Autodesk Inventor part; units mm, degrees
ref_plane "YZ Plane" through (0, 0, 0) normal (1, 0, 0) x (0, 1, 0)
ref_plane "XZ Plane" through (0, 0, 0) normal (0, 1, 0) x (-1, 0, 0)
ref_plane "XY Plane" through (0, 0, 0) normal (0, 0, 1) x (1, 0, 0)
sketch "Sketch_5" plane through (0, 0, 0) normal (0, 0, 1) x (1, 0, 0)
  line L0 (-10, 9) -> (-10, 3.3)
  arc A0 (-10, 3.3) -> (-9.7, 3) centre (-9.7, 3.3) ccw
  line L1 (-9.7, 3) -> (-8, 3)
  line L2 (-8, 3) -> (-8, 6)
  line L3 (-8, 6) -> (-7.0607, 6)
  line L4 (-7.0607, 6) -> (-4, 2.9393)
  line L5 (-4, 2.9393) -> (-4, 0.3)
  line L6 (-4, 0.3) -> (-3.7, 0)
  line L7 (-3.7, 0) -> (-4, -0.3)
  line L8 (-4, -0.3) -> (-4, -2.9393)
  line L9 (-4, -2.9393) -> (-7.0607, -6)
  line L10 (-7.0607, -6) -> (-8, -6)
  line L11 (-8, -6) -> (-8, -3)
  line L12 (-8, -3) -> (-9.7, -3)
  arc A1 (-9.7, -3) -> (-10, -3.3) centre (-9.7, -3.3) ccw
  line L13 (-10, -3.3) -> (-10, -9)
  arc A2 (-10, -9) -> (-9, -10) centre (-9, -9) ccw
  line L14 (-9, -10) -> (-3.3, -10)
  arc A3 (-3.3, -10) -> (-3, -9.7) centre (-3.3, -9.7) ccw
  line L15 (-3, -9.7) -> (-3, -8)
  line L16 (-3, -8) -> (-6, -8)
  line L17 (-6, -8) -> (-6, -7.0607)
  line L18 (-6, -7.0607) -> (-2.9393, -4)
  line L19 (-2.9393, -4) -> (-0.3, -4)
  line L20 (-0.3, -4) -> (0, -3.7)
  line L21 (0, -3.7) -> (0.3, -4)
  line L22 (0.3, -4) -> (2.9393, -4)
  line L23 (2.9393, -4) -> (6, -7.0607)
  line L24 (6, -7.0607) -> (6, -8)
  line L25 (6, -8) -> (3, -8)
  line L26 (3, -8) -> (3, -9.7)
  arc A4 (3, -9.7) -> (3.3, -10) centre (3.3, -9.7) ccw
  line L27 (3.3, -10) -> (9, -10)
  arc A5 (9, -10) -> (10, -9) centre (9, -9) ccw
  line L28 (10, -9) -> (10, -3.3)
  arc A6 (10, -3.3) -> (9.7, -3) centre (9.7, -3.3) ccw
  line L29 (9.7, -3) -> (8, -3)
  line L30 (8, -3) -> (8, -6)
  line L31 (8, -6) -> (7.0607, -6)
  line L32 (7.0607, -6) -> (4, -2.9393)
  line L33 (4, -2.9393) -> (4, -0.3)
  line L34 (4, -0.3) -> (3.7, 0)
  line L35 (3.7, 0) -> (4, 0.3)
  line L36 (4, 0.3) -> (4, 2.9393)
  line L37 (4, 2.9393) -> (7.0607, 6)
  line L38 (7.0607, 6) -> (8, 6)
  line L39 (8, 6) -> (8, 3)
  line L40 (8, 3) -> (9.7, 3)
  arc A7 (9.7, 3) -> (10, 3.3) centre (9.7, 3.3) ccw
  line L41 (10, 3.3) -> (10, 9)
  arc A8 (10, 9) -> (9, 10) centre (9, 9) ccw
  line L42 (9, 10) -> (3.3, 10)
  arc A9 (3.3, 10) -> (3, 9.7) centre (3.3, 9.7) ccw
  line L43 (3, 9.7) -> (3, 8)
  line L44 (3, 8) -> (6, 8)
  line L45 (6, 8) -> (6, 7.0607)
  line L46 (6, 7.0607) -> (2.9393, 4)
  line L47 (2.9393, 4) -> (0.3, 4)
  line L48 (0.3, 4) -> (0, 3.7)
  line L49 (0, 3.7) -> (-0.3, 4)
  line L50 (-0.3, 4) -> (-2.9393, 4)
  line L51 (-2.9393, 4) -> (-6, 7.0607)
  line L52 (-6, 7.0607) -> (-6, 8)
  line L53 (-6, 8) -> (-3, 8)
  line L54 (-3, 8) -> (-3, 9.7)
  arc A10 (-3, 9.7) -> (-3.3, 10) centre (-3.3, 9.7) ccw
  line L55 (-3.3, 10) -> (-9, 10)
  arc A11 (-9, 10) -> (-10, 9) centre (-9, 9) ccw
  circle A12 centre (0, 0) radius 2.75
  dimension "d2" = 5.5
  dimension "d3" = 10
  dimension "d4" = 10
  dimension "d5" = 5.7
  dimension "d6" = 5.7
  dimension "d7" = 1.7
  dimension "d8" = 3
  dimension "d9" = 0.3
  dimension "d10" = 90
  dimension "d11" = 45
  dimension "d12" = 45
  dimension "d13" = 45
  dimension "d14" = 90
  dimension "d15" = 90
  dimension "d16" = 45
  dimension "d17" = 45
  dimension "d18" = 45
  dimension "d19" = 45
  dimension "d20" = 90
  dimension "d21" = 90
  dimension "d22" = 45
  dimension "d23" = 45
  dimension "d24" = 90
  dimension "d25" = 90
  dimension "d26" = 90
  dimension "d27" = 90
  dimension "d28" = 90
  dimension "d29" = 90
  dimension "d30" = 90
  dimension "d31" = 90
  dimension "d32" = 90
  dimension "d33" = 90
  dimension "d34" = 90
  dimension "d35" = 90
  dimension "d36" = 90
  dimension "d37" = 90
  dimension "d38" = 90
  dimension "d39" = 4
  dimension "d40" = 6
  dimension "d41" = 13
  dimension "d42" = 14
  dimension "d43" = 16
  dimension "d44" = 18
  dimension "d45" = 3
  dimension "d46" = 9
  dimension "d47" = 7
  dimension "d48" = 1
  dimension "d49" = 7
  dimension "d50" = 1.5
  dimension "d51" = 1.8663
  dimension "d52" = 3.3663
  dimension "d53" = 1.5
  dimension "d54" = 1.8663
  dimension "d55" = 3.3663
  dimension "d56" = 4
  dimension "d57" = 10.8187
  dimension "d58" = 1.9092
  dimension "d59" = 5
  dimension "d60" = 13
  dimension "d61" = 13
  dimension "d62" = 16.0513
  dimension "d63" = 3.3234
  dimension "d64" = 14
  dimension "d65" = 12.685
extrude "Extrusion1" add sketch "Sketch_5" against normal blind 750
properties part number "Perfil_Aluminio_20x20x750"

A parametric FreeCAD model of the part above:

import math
import FreeCAD as App
import Part
import Sketcher
from FreeCAD import Vector
Q = App.Units.Quantity

doc = App.newDocument("Part")
body = doc.addObject("PartDesign::Body", "Body")

# Sketch on XY plane
sketch1 = body.newObject("Sketcher::SketchObject", "Sketch")
sketch1.AttachmentSupport = (doc.getObject("XY_Plane"), [""])
sketch1.MapMode = "FlatFace"
sketch1.addGeometry([
    Part.ArcOfCircle(Part.Circle(Vector(-9, 9, 0), Vector(0, 0, 1), 1), math.radians(90), math.radians(180)),  # 0
    Part.LineSegment(Vector(-10, 9, 0), Vector(-10, 3.3, 0)),  # 1
    Part.ArcOfCircle(Part.Circle(Vector(-9.7, 3.3, 0), Vector(0, 0, 1), 0.3), math.radians(180), math.radians(270)),  # 2
    Part.LineSegment(Vector(-9.7, 3, 0), Vector(-8, 3, 0)),  # 3
    Part.LineSegment(Vector(-8, 3, 0), Vector(-8, 6, 0)),  # 4
    Part.LineSegment(Vector(-8, 6, 0), Vector(-7.06, 6, 0)),  # 5
    Part.LineSegment(Vector(-7.06, 6, 0), Vector(-4, 2.94, 0)),  # 6
    Part.LineSegment(Vector(-4, 2.94, 0), Vector(-4, 0.3, 0)),  # 7
    Part.LineSegment(Vector(-4, 0.3, 0), Vector(-3.7, 0, 0)),  # 8
    Part.LineSegment(Vector(-3.7, 0, 0), Vector(-4, -0.3, 0)),  # 9
    Part.LineSegment(Vector(-4, -0.3, 0), Vector(-4, -2.94, 0)),  # 10
    Part.LineSegment(Vector(-4, -2.94, 0), Vector(-7.06, -6, 0)),  # 11
    Part.LineSegment(Vector(-7.06, -6, 0), Vector(-8, -6, 0)),  # 12
    Part.LineSegment(Vector(-8, -6, 0), Vector(-8, -3, 0)),  # 13
    Part.LineSegment(Vector(-8, -3, 0), Vector(-9.7, -3, 0)),  # 14
    Part.ArcOfCircle(Part.Circle(Vector(-9.7, -3.3, 0), Vector(0, 0, 1), 0.3), math.radians(90), math.radians(180)),  # 15
    Part.LineSegment(Vector(-10, -3.3, 0), Vector(-10, -9, 0)),  # 16
    Part.ArcOfCircle(Part.Circle(Vector(-9, -9, 0), Vector(0, 0, 1), 1), math.radians(180), math.radians(270)),  # 17
    Part.LineSegment(Vector(-9, -10, 0), Vector(-3.3, -10, 0)),  # 18
    Part.ArcOfCircle(Part.Circle(Vector(-3.3, -9.7, 0), Vector(0, 0, 1), 0.3), math.radians(-90), math.radians(0)),  # 19
    Part.LineSegment(Vector(-3, -9.7, 0), Vector(-3, -8, 0)),  # 20
    Part.LineSegment(Vector(-3, -8, 0), Vector(-6, -8, 0)),  # 21
    Part.LineSegment(Vector(-6, -8, 0), Vector(-6, -7.06, 0)),  # 22
    Part.LineSegment(Vector(-6, -7.06, 0), Vector(-2.94, -4, 0)),  # 23
    Part.LineSegment(Vector(-2.94, -4, 0), Vector(-0.3, -4, 0)),  # 24
    Part.LineSegment(Vector(-0.3, -4, 0), Vector(0, -3.7, 0)),  # 25
    Part.LineSegment(Vector(0, -3.7, 0), Vector(0.3, -4, 0)),  # 26
    Part.LineSegment(Vector(0.3, -4, 0), Vector(2.94, -4, 0)),  # 27
    Part.LineSegment(Vector(2.94, -4, 0), Vector(6, -7.06, 0)),  # 28
    Part.LineSegment(Vector(6, -7.06, 0), Vector(6, -8, 0)),  # 29
    Part.LineSegment(Vector(6, -8, 0), Vector(3, -8, 0)),  # 30
    Part.LineSegment(Vector(3, -8, 0), Vector(3, -9.7, 0)),  # 31
    Part.ArcOfCircle(Part.Circle(Vector(3.3, -9.7, 0), Vector(0, 0, 1), 0.3), math.radians(180), math.radians(270)),  # 32
    Part.LineSegment(Vector(3.3, -10, 0), Vector(9, -10, 0)),  # 33
    Part.ArcOfCircle(Part.Circle(Vector(9, -9, 0), Vector(0, 0, 1), 1), math.radians(-90), math.radians(0)),  # 34
    Part.LineSegment(Vector(10, -9, 0), Vector(10, -3.3, 0)),  # 35
    Part.ArcOfCircle(Part.Circle(Vector(9.7, -3.3, 0), Vector(0, 0, 1), 0.3), math.radians(0), math.radians(90)),  # 36
    Part.LineSegment(Vector(9.7, -3, 0), Vector(8, -3, 0)),  # 37
    Part.LineSegment(Vector(8, -3, 0), Vector(8, -6, 0)),  # 38
    Part.LineSegment(Vector(8, -6, 0), Vector(7.06, -6, 0)),  # 39
    Part.LineSegment(Vector(7.06, -6, 0), Vector(4, -2.94, 0)),  # 40
    Part.LineSegment(Vector(4, -2.94, 0), Vector(4, -0.3, 0)),  # 41
    Part.LineSegment(Vector(4, -0.3, 0), Vector(3.7, 0, 0)),  # 42
    Part.LineSegment(Vector(3.7, 0, 0), Vector(4, 0.3, 0)),  # 43
    Part.LineSegment(Vector(4, 0.3, 0), Vector(4, 2.94, 0)),  # 44
    Part.LineSegment(Vector(4, 2.94, 0), Vector(7.06, 6, 0)),  # 45
    Part.LineSegment(Vector(7.06, 6, 0), Vector(8, 6, 0)),  # 46
    Part.LineSegment(Vector(8, 6, 0), Vector(8, 3, 0)),  # 47
    Part.LineSegment(Vector(8, 3, 0), Vector(9.7, 3, 0)),  # 48
    Part.ArcOfCircle(Part.Circle(Vector(9.7, 3.3, 0), Vector(0, 0, 1), 0.3), math.radians(-90), math.radians(0)),  # 49
    Part.LineSegment(Vector(10, 3.3, 0), Vector(10, 9, 0)),  # 50
    Part.ArcOfCircle(Part.Circle(Vector(9, 9, 0), Vector(0, 0, 1), 1), math.radians(0), math.radians(90)),  # 51
    Part.LineSegment(Vector(9, 10, 0), Vector(3.3, 10, 0)),  # 52
    Part.ArcOfCircle(Part.Circle(Vector(3.3, 9.7, 0), Vector(0, 0, 1), 0.3), math.radians(90), math.radians(180)),  # 53
    Part.LineSegment(Vector(3, 9.7, 0), Vector(3, 8, 0)),  # 54
    Part.LineSegment(Vector(3, 8, 0), Vector(6, 8, 0)),  # 55
    Part.LineSegment(Vector(6, 8, 0), Vector(6, 7.06, 0)),  # 56
    Part.LineSegment(Vector(6, 7.06, 0), Vector(2.94, 4, 0)),  # 57
    Part.LineSegment(Vector(2.94, 4, 0), Vector(0.3, 4, 0)),  # 58
    Part.LineSegment(Vector(0.3, 4, 0), Vector(0, 3.7, 0)),  # 59
    Part.LineSegment(Vector(0, 3.7, 0), Vector(-0.3, 4, 0)),  # 60
    Part.LineSegment(Vector(-0.3, 4, 0), Vector(-2.94, 4, 0)),  # 61
    Part.LineSegment(Vector(-2.94, 4, 0), Vector(-6, 7.06, 0)),  # 62
    Part.LineSegment(Vector(-6, 7.06, 0), Vector(-6, 8, 0)),  # 63
    Part.LineSegment(Vector(-6, 8, 0), Vector(-3, 8, 0)),  # 64
    Part.LineSegment(Vector(-3, 8, 0), Vector(-3, 9.7, 0)),  # 65
    Part.ArcOfCircle(Part.Circle(Vector(-3.3, 9.7, 0), Vector(0, 0, 1), 0.3), math.radians(0), math.radians(90)),  # 66
    Part.LineSegment(Vector(-3.3, 10, 0), Vector(-9, 10, 0)),  # 67
    Part.Circle(Vector(0, 0, 0), Vector(0, 0, 1), 2.75),  # 68
], False)
sketch1.addConstraint([
    Sketcher.Constraint("Tangent", 0, 2, 1, 1),
    Sketcher.Constraint("Tangent", 1, 2, 2, 1),
    Sketcher.Constraint("Tangent", 2, 2, 3, 1),
    Sketcher.Constraint("Coincident", 3, 2, 4, 1),
    Sketcher.Constraint("Coincident", 4, 2, 5, 1),
    Sketcher.Constraint("Coincident", 5, 2, 6, 1),
    Sketcher.Constraint("Coincident", 6, 2, 7, 1),
    Sketcher.Constraint("Coincident", 7, 2, 8, 1),
    Sketcher.Constraint("Coincident", 8, 2, 9, 1),
    Sketcher.Constraint("Coincident", 9, 2, 10, 1),
    Sketcher.Constraint("Coincident", 10, 2, 11, 1),
    Sketcher.Constraint("Coincident", 11, 2, 12, 1),
    Sketcher.Constraint("Coincident", 12, 2, 13, 1),
    Sketcher.Constraint("Coincident", 13, 2, 14, 1),
    Sketcher.Constraint("Tangent", 14, 2, 15, 1),
    Sketcher.Constraint("Tangent", 15, 2, 16, 1),
    Sketcher.Constraint("Tangent", 16, 2, 17, 1),
    Sketcher.Constraint("Tangent", 17, 2, 18, 1),
    Sketcher.Constraint("Tangent", 18, 2, 19, 1),
    Sketcher.Constraint("Tangent", 19, 2, 20, 1),
    Sketcher.Constraint("Coincident", 20, 2, 21, 1),
    Sketcher.Constraint("Coincident", 21, 2, 22, 1),
    Sketcher.Constraint("Coincident", 22, 2, 23, 1),
    Sketcher.Constraint("Coincident", 23, 2, 24, 1),
    Sketcher.Constraint("Coincident", 24, 2, 25, 1),
    Sketcher.Constraint("Coincident", 25, 2, 26, 1),
    Sketcher.Constraint("Coincident", 26, 2, 27, 1),
    Sketcher.Constraint("Coincident", 27, 2, 28, 1),
    Sketcher.Constraint("Coincident", 28, 2, 29, 1),
    Sketcher.Constraint("Coincident", 29, 2, 30, 1),
    Sketcher.Constraint("Coincident", 30, 2, 31, 1),
    Sketcher.Constraint("Tangent", 31, 2, 32, 1),
    Sketcher.Constraint("Tangent", 32, 2, 33, 1),
    Sketcher.Constraint("Tangent", 33, 2, 34, 1),
    Sketcher.Constraint("Tangent", 34, 2, 35, 1),
    Sketcher.Constraint("Tangent", 35, 2, 36, 1),
    Sketcher.Constraint("Tangent", 36, 2, 37, 1),
    Sketcher.Constraint("Coincident", 37, 2, 38, 1),
    Sketcher.Constraint("Coincident", 38, 2, 39, 1),
    Sketcher.Constraint("Coincident", 39, 2, 40, 1),
    Sketcher.Constraint("Coincident", 40, 2, 41, 1),
    Sketcher.Constraint("Coincident", 41, 2, 42, 1),
    Sketcher.Constraint("Coincident", 42, 2, 43, 1),
    Sketcher.Constraint("Coincident", 43, 2, 44, 1),
    Sketcher.Constraint("Coincident", 44, 2, 45, 1),
    Sketcher.Constraint("Coincident", 45, 2, 46, 1),
    Sketcher.Constraint("Coincident", 46, 2, 47, 1),
    Sketcher.Constraint("Coincident", 47, 2, 48, 1),
    Sketcher.Constraint("Tangent", 48, 2, 49, 1),
    Sketcher.Constraint("Tangent", 49, 2, 50, 1),
    Sketcher.Constraint("Tangent", 50, 2, 51, 1),
    Sketcher.Constraint("Tangent", 51, 2, 52, 1),
    Sketcher.Constraint("Tangent", 52, 2, 53, 1),
    Sketcher.Constraint("Tangent", 53, 2, 54, 1),
    Sketcher.Constraint("Coincident", 54, 2, 55, 1),
    Sketcher.Constraint("Coincident", 55, 2, 56, 1),
    Sketcher.Constraint("Coincident", 56, 2, 57, 1),
    Sketcher.Constraint("Coincident", 57, 2, 58, 1),
    Sketcher.Constraint("Coincident", 58, 2, 59, 1),
    Sketcher.Constraint("Coincident", 59, 2, 60, 1),
    Sketcher.Constraint("Coincident", 60, 2, 61, 1),
    Sketcher.Constraint("Coincident", 61, 2, 62, 1),
    Sketcher.Constraint("Coincident", 62, 2, 63, 1),
    Sketcher.Constraint("Coincident", 63, 2, 64, 1),
    Sketcher.Constraint("Coincident", 64, 2, 65, 1),
    Sketcher.Constraint("Tangent", 65, 2, 66, 1),
    Sketcher.Constraint("Tangent", 66, 2, 67, 1),
    Sketcher.Constraint("Tangent", 67, 2, 0, 1),
    Sketcher.Constraint("Vertical", 1),
    Sketcher.Constraint("Horizontal", 3),
    Sketcher.Constraint("Vertical", 4),
    Sketcher.Constraint("Horizontal", 5),
    Sketcher.Constraint("Vertical", 7),
    Sketcher.Constraint("Vertical", 10),
    Sketcher.Constraint("Horizontal", 12),
    Sketcher.Constraint("Vertical", 13),
    Sketcher.Constraint("Horizontal", 14),
    Sketcher.Constraint("Vertical", 16),
    Sketcher.Constraint("Horizontal", 18),
    Sketcher.Constraint("Vertical", 20),
    Sketcher.Constraint("Horizontal", 21),
    Sketcher.Constraint("Vertical", 22),
    Sketcher.Constraint("Horizontal", 24),
    Sketcher.Constraint("Horizontal", 27),
    Sketcher.Constraint("Vertical", 29),
    Sketcher.Constraint("Horizontal", 30),
    Sketcher.Constraint("Vertical", 31),
    Sketcher.Constraint("Horizontal", 33),
    Sketcher.Constraint("Vertical", 35),
    Sketcher.Constraint("Horizontal", 37),
    Sketcher.Constraint("Vertical", 38),
    Sketcher.Constraint("Horizontal", 39),
    Sketcher.Constraint("Vertical", 41),
    Sketcher.Constraint("Vertical", 44),
    Sketcher.Constraint("Horizontal", 46),
    Sketcher.Constraint("Vertical", 47),
    Sketcher.Constraint("Horizontal", 48),
    Sketcher.Constraint("Vertical", 50),
    Sketcher.Constraint("Horizontal", 52),
    Sketcher.Constraint("Vertical", 54),
    Sketcher.Constraint("Horizontal", 55),
    Sketcher.Constraint("Vertical", 56),
    Sketcher.Constraint("Horizontal", 58),
    Sketcher.Constraint("Horizontal", 61),
    Sketcher.Constraint("Vertical", 63),
    Sketcher.Constraint("Horizontal", 64),
    Sketcher.Constraint("Vertical", 65),
    Sketcher.Constraint("Horizontal", 67),
    Sketcher.Constraint("Coincident", 68, 3, -1, 1),
    Sketcher.Constraint("Equal", 2, 15),
    Sketcher.Constraint("Equal", 0, 17),
    Sketcher.Constraint("Equal", 15, 19),
    Sketcher.Constraint("Equal", 19, 32),
    Sketcher.Constraint("Equal", 17, 34),
    Sketcher.Constraint("Equal", 32, 36),
    Sketcher.Constraint("Equal", 36, 49),
    Sketcher.Constraint("Equal", 34, 51),
    Sketcher.Constraint("Equal", 49, 53),
    Sketcher.Constraint("Equal", 53, 66),
    Sketcher.Constraint("Symmetric", 0, 3, 34, 3, -1, 1),
    Sketcher.Constraint("Symmetric", 15, 3, 49, 3, -1, 1),
    Sketcher.Constraint("Symmetric", 19, 3, 53, 3, -1, 1),
    Sketcher.Constraint("Symmetric", 3, 2, 37, 2, -1, 1),
    Sketcher.Constraint("Symmetric", 5, 2, 39, 2, -1, 1),
    Sketcher.Constraint("Symmetric", 6, 2, 40, 2, -1, 1),
    Sketcher.Constraint("Symmetric", 8, 2, 42, 2, -1, 1),
    Sketcher.Constraint("Symmetric", 9, 2, 43, 2, -1, 1),
    Sketcher.Constraint("Symmetric", 11, 2, 45, 2, -1, 1),
    Sketcher.Constraint("Symmetric", 21, 2, 55, 2, -1, 1),
    Sketcher.Constraint("Symmetric", 23, 2, 57, 2, -1, 1),
    Sketcher.Constraint("Symmetric", 25, 2, 59, 2, -1, 1),
    Sketcher.Constraint("Symmetric", 26, 2, 60, 2, -1, 1),
    Sketcher.Constraint("Symmetric", 28, 2, 62, 2, -1, 1),
    Sketcher.Constraint("Symmetric", 30, 2, 64, 2, -1, 1),
    Sketcher.Constraint("Symmetric", 19, 3, 32, 3, -2),
    Sketcher.Constraint("Symmetric", 15, 3, 36, 3, -2),
    Sketcher.Constraint("Symmetric", 24, 2, 26, 2, -2),
    Sketcher.Constraint("Symmetric", 22, 2, 28, 2, -2),
    Sketcher.Constraint("Symmetric", 12, 2, 38, 2, -2),
    Sketcher.Constraint("Symmetric", 10, 2, 40, 2, -2),
    Sketcher.Constraint("PointOnObject", 8, 2, -1),
    Sketcher.Constraint("PointOnObject", 25, 2, -2),
    Sketcher.Constraint("Parallel", 6, 8),
    Sketcher.Constraint("Perpendicular", 8, 9),
    Sketcher.Constraint("Parallel", 9, 11),
    Sketcher.Constraint("Parallel", 11, 23),
    Sketcher.Constraint("Parallel", 23, 25),
    Sketcher.Constraint("Perpendicular", 25, 26),
    Sketcher.Constraint("Parallel", 26, 28),
    Sketcher.Constraint("Parallel", 40, 42),
    Sketcher.Constraint("Parallel", 43, 45),
    Sketcher.Constraint("Parallel", 45, 57),
    Sketcher.Constraint("Parallel", 57, 59),
    Sketcher.Constraint("Parallel", 60, 62),
    Sketcher.Constraint("Horizontal", 21, 2, 29, 2),
    Sketcher.Constraint("Vertical", 38, 2, 46, 2),
    Sketcher.Constraint("Equal", 67, 1),
    Sketcher.Constraint("Equal", 64, 4),
    Sketcher.Constraint("Equal", 61, 7),
    Sketcher.Constraint("Equal", 48, 20),
    Sketcher.Constraint("Equal", 46, 22),
    Sketcher.Constraint("Equal", 11, 23),
    Sketcher.Constraint("Equal", 9, 25),
    Sketcher.Constraint("Radius", 0, Q("1 mm")),
    Sketcher.Constraint("Diameter", 68, Q("5.5 mm")),
    Sketcher.Constraint("Radius", 2, Q("0.3 mm")),
    Sketcher.Constraint("DistanceX", 21, 2, 21, 1, Q("3 mm")),
    Sketcher.Constraint("DistanceX", 3, 1, 3, 2, Q("1.7 mm")),
    Sketcher.Constraint("DistanceX", 18, 1, 18, 2, Q("5.7 mm")),
    Sketcher.Constraint("DistanceX", 0, 3, -1, 1, Q("9 mm")),
    Sketcher.Constraint("DistanceX", 6, 2, -1, 1, Q("4 mm")),
    Sketcher.Constraint("DistanceY", -1, 1, 7, 2, Q("0.3 mm")),
    Sketcher.Constraint("DistanceX", 5, 1, 5, 2, Q("0.9393 mm")),
])
pad1 = body.newObject("PartDesign::Pad", "Pad")
pad1.Profile = sketch1
pad1.Length = 750
pad1.Reversed = True

doc.recompute()
